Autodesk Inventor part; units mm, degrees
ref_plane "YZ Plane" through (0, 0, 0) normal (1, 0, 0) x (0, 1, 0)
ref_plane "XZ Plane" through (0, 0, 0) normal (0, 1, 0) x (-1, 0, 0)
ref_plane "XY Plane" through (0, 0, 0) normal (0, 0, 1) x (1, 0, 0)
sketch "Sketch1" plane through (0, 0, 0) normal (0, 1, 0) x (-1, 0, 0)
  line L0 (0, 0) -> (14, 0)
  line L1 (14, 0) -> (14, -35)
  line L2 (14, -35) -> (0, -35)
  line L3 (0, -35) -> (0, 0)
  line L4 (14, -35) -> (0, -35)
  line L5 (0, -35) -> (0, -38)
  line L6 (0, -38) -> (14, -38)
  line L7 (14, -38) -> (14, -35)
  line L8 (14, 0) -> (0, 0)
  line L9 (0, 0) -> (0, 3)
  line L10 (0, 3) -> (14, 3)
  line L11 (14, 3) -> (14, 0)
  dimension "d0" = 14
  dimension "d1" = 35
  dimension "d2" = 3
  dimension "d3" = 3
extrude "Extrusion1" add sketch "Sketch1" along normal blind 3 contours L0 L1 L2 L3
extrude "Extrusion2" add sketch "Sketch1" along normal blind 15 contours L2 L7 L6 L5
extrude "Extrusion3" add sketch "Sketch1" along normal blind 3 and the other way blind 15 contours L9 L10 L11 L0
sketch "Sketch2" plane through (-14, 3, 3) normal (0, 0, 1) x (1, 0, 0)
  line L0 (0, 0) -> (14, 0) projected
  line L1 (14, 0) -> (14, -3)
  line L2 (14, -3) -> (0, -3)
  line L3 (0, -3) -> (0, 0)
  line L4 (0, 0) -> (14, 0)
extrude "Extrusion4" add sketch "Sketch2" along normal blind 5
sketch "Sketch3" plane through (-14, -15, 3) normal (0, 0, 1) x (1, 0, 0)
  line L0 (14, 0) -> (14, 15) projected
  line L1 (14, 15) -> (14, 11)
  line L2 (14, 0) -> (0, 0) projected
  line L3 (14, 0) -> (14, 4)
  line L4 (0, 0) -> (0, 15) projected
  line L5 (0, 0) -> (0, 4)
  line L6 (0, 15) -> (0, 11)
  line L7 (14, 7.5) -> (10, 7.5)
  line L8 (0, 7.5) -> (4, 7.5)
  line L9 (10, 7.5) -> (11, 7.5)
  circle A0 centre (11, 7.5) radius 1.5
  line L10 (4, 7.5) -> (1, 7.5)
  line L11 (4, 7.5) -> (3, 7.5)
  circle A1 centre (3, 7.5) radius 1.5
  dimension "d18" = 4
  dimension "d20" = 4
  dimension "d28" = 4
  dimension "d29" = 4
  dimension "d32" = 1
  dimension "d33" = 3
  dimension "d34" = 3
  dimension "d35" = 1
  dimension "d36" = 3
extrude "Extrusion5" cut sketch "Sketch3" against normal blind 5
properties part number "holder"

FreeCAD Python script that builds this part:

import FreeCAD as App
import Part
import Sketcher

V = App.Vector


def add_polygon(sketch, points):
    """Adds a closed chain of lines whose ends are joined by coincident constraints."""
    first, n = sketch.GeometryCount, len(points)
    for a, b in zip(points, points[1:] + points[:1]):
        sketch.addGeometry(Part.LineSegment(App.Vector(*a, 0), App.Vector(*b, 0)), False)
    for i in range(n):
        sketch.addConstraint(Sketcher.Constraint("Coincident", first + i, 2, first + (i + 1) % n, 1))

doc = App.newDocument("Part")
body = doc.addObject("PartDesign::Body", "Body")

sketch1 = body.newObject("Sketcher::SketchObject", "Sketch")
sketch1.AttachmentSupport = (doc.getObject("XZ_Plane"), [""])
sketch1.MapMode = "FlatFace"
add_polygon(sketch1, [(-14, 0), (0, 0), (0, -35), (-14, -35)])
sketch1.addConstraint([
    Sketcher.Constraint("Horizontal", 0),
    Sketcher.Constraint("Vertical", 1),
    Sketcher.Constraint("Horizontal", 2),
    Sketcher.Constraint("Vertical", 3),
    Sketcher.Constraint("Coincident", 0, 2, -1, 1),
    Sketcher.Constraint("DistanceX", 0, 1, 0, 2, 14.0),
    Sketcher.Constraint("DistanceY", 1, 2, 1, 1, 35.0),
])
pad1 = body.newObject("PartDesign::Pad", "Pad")
pad1.Profile = sketch1
pad1.Length = 3
pad1.Reversed = True

sketch2 = body.newObject("Sketcher::SketchObject", "Sketch001")
sketch2.AttachmentSupport = (doc.getObject("XZ_Plane"), [""])
sketch2.MapMode = "FlatFace"
add_polygon(sketch2, [(-14, -35), (0, -35), (0, -38), (-14, -38)])
sketch2.addConstraint([
    Sketcher.Constraint("Horizontal", 0),
    Sketcher.Constraint("Vertical", 1),
    Sketcher.Constraint("Horizontal", 2),
    Sketcher.Constraint("Vertical", 3),
    Sketcher.Constraint("PointOnObject", 0, 2, -2),
    Sketcher.Constraint("DistanceX", 0, 1, 0, 2, 14.0),
    Sketcher.Constraint("DistanceY", 1, 2, 1, 1, 3.0),
    Sketcher.Constraint("DistanceY", 0, 2, -1, 1, 35.0),
])
pad2 = body.newObject("PartDesign::Pad", "Pad001")
pad2.Profile = sketch2
pad2.Length = 15
pad2.Reversed = True

sketch3 = body.newObject("Sketcher::SketchObject", "Sketch002")
sketch3.AttachmentSupport = (doc.getObject("XZ_Plane"), [""])
sketch3.MapMode = "FlatFace"
add_polygon(sketch3, [(0, 3), (0, 0), (-14, 0), (-14, 3)])
sketch3.addConstraint([
    Sketcher.Constraint("Vertical", 0),
    Sketcher.Constraint("Horizontal", 1),
    Sketcher.Constraint("Vertical", 2),
    Sketcher.Constraint("Horizontal", 3),
    Sketcher.Constraint("Coincident", 0, 2, -1, 1),
    Sketcher.Constraint("DistanceX", 1, 2, 1, 1, 14.0),
    Sketcher.Constraint("DistanceY", 0, 2, 0, 1, 3.0),
])
pad3 = body.newObject("PartDesign::Pad", "Pad002")
pad3.Profile = sketch3
pad3.Type = "TwoLengths"
pad3.Length = 3
pad3.Length2 = 15
pad3.Reversed = True

sketch4 = body.newObject("Sketcher::SketchObject", "Sketch003")
sketch4.AttachmentSupport = (doc.getObject("XY_Plane"), [""])
sketch4.MapMode = "FlatFace"
sketch4.AttachmentOffset = App.Placement(V(0, 0, 3), App.Rotation())
add_polygon(sketch4, [(0, 3), (-14, 3), (-14, 0), (0, 0)])
sketch4.addConstraint([
    Sketcher.Constraint("Horizontal", 0),
    Sketcher.Constraint("Vertical", 1),
    Sketcher.Constraint("Horizontal", 2),
    Sketcher.Constraint("Vertical", 3),
    Sketcher.Constraint("Coincident", 2, 2, -1, 1),
    Sketcher.Constraint("DistanceX", 0, 2, 0, 1, 14.0),
    Sketcher.Constraint("DistanceY", 1, 2, 1, 1, 3.0),
])
pad4 = body.newObject("PartDesign::Pad", "Pad003")
pad4.Profile = sketch4
pad4.Length = 5

sketch5 = body.newObject("Sketcher::SketchObject", "Sketch004")
sketch5.AttachmentSupport = (doc.getObject("XY_Plane"), [""])
sketch5.MapMode = "FlatFace"
sketch5.AttachmentOffset = App.Placement(V(0, 0, 3), App.Rotation())
sketch5.addGeometry([
    Part.Circle(V(-3, -7.5, 0), V(0, 0, 1), 1.5),
    Part.Circle(V(-11, -7.5, 0), V(0, 0, 1), 1.5),
], False)
sketch5.addConstraint([
    Sketcher.Constraint("Equal", 0, 1),
    Sketcher.Constraint("Horizontal", 0, 3, 1, 3),
    Sketcher.Constraint("Diameter", 0, 3.0),
    Sketcher.Constraint("DistanceX", 0, 3, -1, 1, 3.0),
    Sketcher.Constraint("DistanceX", 1, 3, -1, 1, 11.0),
    Sketcher.Constraint("DistanceY", 0, 3, -1, 1, 7.5),
])
pocket1 = body.newObject("PartDesign::Pocket", "Pocket")
pocket1.Profile = sketch5
pocket1.Length = 5

doc.recompute()
